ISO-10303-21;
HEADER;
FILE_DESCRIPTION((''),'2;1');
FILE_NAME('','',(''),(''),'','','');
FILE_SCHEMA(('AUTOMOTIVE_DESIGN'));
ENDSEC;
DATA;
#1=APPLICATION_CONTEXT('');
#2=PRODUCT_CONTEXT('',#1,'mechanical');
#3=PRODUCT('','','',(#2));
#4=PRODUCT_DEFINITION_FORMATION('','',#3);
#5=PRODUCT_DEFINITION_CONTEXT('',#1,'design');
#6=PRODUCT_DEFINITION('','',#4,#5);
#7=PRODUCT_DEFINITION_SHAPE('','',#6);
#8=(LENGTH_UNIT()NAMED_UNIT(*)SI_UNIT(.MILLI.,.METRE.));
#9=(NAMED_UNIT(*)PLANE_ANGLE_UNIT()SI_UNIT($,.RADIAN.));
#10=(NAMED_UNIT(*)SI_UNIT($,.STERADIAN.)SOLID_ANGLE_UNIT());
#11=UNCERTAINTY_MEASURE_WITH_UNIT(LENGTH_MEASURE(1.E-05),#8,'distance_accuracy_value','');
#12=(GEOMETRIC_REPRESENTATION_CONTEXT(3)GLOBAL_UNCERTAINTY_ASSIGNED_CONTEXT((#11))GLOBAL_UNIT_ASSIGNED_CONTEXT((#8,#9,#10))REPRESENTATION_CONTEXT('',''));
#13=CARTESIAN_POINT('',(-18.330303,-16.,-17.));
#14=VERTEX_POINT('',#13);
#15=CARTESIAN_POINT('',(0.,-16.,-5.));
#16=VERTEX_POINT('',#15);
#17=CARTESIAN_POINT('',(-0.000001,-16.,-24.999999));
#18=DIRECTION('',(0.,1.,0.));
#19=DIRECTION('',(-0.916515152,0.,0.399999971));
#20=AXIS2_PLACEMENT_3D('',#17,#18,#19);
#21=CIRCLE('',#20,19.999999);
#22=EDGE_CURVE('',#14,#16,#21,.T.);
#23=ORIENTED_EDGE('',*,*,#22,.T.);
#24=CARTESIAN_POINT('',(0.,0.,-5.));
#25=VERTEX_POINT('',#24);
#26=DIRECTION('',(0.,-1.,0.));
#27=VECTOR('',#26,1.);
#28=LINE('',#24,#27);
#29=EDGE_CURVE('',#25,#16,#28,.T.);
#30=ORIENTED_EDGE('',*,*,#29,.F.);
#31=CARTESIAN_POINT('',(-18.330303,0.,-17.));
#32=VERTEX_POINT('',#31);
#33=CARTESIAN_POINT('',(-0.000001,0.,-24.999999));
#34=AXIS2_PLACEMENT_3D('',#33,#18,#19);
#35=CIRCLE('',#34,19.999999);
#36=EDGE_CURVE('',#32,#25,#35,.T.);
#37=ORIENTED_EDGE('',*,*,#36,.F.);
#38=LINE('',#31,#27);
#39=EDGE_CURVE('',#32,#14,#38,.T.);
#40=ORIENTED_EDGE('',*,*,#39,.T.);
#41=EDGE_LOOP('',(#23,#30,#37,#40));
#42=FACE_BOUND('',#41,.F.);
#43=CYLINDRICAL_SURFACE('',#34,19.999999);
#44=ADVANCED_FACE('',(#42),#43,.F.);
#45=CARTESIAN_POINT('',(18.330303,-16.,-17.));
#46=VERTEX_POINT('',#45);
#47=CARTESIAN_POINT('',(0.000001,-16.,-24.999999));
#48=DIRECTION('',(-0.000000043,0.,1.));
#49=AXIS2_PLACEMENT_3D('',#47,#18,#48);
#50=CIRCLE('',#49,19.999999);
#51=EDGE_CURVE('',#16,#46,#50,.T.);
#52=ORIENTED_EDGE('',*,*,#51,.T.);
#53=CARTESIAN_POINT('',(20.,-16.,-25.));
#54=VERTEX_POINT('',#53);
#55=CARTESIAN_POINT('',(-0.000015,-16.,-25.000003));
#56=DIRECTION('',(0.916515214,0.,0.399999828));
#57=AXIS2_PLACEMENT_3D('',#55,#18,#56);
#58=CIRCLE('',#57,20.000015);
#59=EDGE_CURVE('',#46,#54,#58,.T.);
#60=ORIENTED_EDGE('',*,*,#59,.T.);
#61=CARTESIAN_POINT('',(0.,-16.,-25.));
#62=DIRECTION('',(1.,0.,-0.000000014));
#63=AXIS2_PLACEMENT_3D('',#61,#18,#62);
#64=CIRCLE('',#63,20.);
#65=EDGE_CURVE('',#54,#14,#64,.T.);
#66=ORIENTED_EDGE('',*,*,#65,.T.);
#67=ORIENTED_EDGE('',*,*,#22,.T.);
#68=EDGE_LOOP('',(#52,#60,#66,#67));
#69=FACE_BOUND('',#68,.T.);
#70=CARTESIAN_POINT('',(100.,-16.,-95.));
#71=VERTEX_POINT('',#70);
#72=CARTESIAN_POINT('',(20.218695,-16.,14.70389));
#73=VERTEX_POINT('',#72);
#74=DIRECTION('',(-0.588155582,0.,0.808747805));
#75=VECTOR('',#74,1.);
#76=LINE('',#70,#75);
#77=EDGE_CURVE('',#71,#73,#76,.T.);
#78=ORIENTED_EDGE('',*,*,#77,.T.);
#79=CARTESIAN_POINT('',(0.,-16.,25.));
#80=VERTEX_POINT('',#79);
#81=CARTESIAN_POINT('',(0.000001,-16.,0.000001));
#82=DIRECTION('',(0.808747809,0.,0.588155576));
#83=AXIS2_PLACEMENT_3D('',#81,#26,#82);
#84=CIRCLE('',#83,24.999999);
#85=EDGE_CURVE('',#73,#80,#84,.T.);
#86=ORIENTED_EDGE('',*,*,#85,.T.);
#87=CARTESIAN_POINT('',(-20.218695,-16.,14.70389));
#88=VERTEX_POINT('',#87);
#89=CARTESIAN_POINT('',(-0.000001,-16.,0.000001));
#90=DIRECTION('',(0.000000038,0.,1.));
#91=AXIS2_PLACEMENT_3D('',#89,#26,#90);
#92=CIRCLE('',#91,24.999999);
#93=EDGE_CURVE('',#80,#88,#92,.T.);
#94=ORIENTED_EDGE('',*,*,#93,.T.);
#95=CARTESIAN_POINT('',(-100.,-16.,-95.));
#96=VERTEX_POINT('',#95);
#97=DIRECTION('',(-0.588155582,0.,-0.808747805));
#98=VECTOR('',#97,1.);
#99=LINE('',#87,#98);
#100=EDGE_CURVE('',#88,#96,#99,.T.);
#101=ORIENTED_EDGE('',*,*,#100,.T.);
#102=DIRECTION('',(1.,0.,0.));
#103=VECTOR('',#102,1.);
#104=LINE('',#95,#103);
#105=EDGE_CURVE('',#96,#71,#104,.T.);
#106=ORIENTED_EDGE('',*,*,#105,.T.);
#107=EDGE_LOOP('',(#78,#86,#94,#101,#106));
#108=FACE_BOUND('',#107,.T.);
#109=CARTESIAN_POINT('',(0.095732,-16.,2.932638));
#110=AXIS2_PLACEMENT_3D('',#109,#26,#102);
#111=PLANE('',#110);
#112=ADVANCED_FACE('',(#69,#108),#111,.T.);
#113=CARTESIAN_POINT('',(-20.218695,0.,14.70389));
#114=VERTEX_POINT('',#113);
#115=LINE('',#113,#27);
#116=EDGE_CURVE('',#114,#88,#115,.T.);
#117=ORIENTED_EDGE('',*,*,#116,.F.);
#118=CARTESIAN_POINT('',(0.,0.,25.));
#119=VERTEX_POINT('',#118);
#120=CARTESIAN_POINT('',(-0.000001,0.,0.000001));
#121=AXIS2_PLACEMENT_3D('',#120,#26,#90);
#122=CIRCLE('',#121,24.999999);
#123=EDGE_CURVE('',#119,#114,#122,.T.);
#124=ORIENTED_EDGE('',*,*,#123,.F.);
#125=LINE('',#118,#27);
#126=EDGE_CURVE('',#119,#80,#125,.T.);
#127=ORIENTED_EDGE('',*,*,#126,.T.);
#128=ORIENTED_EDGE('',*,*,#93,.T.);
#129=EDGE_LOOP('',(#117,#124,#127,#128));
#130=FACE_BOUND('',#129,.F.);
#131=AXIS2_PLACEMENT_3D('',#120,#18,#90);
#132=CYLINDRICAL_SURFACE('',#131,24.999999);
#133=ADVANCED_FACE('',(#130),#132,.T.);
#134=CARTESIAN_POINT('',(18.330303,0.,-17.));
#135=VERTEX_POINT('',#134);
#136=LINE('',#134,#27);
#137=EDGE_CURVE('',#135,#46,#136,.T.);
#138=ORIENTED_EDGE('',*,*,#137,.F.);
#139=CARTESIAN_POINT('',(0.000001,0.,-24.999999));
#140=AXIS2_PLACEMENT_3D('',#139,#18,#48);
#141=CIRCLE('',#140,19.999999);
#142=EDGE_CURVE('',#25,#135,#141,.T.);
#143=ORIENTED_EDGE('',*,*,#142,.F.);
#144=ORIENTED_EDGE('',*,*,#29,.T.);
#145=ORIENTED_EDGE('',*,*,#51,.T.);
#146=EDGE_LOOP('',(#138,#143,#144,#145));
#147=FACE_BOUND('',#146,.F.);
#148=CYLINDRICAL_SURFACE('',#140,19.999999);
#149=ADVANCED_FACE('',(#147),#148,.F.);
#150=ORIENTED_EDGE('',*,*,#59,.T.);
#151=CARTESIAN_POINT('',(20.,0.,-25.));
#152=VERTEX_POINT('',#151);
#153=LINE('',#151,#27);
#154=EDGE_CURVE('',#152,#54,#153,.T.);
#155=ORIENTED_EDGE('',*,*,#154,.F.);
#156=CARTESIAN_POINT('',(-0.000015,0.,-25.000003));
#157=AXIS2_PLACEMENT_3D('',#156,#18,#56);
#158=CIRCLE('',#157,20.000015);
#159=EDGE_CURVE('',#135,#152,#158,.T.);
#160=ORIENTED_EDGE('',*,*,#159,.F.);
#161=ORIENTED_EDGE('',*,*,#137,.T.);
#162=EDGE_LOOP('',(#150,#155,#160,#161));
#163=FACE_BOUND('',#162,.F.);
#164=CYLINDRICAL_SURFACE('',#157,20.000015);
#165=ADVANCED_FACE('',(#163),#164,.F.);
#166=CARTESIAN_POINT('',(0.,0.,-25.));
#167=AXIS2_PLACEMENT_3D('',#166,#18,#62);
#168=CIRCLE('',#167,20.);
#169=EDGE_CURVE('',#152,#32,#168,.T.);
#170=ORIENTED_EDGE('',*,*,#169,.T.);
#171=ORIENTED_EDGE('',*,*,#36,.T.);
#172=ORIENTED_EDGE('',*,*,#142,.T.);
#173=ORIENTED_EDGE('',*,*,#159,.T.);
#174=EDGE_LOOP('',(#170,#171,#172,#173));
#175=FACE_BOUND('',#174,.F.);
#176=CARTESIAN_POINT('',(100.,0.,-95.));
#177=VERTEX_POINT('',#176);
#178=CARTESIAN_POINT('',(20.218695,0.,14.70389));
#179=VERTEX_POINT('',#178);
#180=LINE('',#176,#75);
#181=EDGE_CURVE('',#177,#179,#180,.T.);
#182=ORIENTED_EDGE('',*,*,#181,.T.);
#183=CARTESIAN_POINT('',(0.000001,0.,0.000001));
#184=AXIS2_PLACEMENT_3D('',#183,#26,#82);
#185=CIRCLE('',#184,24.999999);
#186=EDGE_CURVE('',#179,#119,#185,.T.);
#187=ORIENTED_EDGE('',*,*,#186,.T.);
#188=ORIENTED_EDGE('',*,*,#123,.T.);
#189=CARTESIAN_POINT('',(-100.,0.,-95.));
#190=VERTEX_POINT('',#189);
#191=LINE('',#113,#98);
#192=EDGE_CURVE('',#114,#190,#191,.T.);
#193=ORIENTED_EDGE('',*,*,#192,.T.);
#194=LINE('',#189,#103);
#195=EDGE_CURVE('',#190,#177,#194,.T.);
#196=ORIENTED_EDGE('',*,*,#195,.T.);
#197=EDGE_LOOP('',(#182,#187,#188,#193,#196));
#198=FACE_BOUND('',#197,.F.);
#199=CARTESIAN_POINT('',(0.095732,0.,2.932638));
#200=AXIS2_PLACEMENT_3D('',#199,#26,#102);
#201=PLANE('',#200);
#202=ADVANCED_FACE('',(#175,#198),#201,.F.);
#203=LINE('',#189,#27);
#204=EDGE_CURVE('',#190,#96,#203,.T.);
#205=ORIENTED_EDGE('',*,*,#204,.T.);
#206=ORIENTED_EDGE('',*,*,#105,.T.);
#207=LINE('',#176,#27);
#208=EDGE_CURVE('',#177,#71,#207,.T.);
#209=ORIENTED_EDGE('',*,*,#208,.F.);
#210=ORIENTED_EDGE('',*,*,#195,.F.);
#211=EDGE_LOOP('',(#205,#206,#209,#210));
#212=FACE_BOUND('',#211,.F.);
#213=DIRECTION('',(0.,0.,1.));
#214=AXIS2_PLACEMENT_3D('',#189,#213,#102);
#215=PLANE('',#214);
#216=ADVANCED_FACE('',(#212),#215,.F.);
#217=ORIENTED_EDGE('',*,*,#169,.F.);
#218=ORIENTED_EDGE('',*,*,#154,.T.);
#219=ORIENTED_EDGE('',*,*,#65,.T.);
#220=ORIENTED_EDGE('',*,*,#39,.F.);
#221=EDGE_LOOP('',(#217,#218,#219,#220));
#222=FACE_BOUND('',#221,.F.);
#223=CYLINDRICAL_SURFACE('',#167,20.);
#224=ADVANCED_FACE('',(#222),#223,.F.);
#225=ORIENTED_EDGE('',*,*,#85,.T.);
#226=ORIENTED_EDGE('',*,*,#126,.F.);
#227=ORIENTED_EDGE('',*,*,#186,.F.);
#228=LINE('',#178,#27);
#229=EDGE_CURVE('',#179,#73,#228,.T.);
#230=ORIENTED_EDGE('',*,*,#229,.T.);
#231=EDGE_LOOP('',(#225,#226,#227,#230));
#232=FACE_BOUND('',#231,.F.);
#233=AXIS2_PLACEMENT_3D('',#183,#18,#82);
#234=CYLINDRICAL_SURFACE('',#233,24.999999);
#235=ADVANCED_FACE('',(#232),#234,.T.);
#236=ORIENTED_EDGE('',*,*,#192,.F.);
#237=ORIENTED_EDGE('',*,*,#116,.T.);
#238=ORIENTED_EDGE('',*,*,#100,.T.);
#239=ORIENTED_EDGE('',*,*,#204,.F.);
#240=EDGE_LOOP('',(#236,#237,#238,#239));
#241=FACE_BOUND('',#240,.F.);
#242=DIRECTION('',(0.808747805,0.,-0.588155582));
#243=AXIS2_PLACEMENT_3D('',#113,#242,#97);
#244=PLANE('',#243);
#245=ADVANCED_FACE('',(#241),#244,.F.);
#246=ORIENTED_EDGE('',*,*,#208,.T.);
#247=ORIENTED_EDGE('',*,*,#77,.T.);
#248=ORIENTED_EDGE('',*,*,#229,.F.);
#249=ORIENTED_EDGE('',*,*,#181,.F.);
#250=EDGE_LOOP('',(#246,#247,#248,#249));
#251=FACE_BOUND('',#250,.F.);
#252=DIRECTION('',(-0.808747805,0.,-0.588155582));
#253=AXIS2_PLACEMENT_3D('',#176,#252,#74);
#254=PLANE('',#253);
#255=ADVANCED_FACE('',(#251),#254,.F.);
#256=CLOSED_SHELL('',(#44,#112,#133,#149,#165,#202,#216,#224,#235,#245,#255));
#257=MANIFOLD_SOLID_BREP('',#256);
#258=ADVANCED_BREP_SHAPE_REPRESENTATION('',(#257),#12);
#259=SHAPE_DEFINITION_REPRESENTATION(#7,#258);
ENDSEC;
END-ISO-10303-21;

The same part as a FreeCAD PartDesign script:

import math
import FreeCAD as App
import Part
import Sketcher

doc = App.newDocument("Part")
body = doc.addObject("PartDesign::Body", "Body")

sketch1 = body.newObject("Sketcher::SketchObject", "Sketch")
sketch1.AttachmentSupport = (doc.getObject("XZ_Plane"), [""])
sketch1.MapMode = "FlatFace"
sketch1.addGeometry([
    Part.ArcOfCircle(Part.Circle(App.Vector(0, 0, 0), App.Vector(0, 0, 1), 25), math.radians(36), math.radians(90)),
    Part.ArcOfCircle(Part.Circle(App.Vector(0, 0, 0), App.Vector(0, 0, 1), 25), math.radians(90), math.radians(144)),
    Part.LineSegment(App.Vector(-20, 15, 0), App.Vector(-100, -95, 0)),
    Part.LineSegment(App.Vector(-100, -95, 0), App.Vector(100, -95, 0)),
    Part.LineSegment(App.Vector(100, -95, 0), App.Vector(20, 15, 0)),
    Part.ArcOfCircle(Part.Circle(App.Vector(0, -25, 0), App.Vector(0, 0, 1), 20), math.radians(90), math.radians(156)),
    Part.ArcOfCircle(Part.Circle(App.Vector(0, -25, 0), App.Vector(0, 0, 1), 20), math.radians(24), math.radians(90)),
    Part.ArcOfCircle(Part.Circle(App.Vector(0, -25, 0), App.Vector(0, 0, 1), 20), math.radians(0), math.radians(24)),
    Part.ArcOfCircle(Part.Circle(App.Vector(0, -25, 0), App.Vector(0, 0, 1), 20), math.radians(156), math.radians(360)),
], False)
sketch1.addConstraint([
    Sketcher.Constraint("Tangent", 0, 2, 1, 1),
    Sketcher.Constraint("Tangent", 1, 2, 2, 1),
    Sketcher.Constraint("Coincident", 2, 2, 3, 1),
    Sketcher.Constraint("Coincident", 3, 2, 4, 1),
    Sketcher.Constraint("Tangent", 4, 2, 0, 1),
    Sketcher.Constraint("Tangent", 5, 1, 6, 2),
    Sketcher.Constraint("Tangent", 6, 1, 7, 2),
    Sketcher.Constraint("Tangent", 7, 1, 8, 2),
    Sketcher.Constraint("Tangent", 8, 1, 5, 2),
    Sketcher.Constraint("Horizontal", 3),
    Sketcher.Constraint("Coincident", 0, 3, -1, 1),
    Sketcher.Constraint("Equal", 0, 1),
    Sketcher.Constraint("Equal", 5, 6),
    Sketcher.Constraint("Symmetric", 6, 1, 8, 1, -2),
    Sketcher.Constraint("PointOnObject", 0, 2, -2),
    Sketcher.Constraint("PointOnObject", 5, 1, -2),
    Sketcher.Constraint("Horizontal", 1, 2, 4, 2),
    Sketcher.Constraint("Horizontal", 8, 3, 7, 1),
    Sketcher.Constraint("Radius", 0, 24.999999),
    Sketcher.Constraint("Radius", 5, 19.999999),
    Sketcher.Constraint("DistanceX", 3, 1, 3, 2, 200.0),
    Sketcher.Constraint("DistanceY", 5, 3, -1, 1, 24.999999),
    Sketcher.Constraint("DistanceY", 2, 2, -1, 1, 95.0),
    Sketcher.Constraint("DistanceY", 6, 1, -1, 1, 17.0),
])
pad1 = body.newObject("PartDesign::Pad", "Pad")
pad1.Profile = sketch1
pad1.Length = 16

doc.recompute()
